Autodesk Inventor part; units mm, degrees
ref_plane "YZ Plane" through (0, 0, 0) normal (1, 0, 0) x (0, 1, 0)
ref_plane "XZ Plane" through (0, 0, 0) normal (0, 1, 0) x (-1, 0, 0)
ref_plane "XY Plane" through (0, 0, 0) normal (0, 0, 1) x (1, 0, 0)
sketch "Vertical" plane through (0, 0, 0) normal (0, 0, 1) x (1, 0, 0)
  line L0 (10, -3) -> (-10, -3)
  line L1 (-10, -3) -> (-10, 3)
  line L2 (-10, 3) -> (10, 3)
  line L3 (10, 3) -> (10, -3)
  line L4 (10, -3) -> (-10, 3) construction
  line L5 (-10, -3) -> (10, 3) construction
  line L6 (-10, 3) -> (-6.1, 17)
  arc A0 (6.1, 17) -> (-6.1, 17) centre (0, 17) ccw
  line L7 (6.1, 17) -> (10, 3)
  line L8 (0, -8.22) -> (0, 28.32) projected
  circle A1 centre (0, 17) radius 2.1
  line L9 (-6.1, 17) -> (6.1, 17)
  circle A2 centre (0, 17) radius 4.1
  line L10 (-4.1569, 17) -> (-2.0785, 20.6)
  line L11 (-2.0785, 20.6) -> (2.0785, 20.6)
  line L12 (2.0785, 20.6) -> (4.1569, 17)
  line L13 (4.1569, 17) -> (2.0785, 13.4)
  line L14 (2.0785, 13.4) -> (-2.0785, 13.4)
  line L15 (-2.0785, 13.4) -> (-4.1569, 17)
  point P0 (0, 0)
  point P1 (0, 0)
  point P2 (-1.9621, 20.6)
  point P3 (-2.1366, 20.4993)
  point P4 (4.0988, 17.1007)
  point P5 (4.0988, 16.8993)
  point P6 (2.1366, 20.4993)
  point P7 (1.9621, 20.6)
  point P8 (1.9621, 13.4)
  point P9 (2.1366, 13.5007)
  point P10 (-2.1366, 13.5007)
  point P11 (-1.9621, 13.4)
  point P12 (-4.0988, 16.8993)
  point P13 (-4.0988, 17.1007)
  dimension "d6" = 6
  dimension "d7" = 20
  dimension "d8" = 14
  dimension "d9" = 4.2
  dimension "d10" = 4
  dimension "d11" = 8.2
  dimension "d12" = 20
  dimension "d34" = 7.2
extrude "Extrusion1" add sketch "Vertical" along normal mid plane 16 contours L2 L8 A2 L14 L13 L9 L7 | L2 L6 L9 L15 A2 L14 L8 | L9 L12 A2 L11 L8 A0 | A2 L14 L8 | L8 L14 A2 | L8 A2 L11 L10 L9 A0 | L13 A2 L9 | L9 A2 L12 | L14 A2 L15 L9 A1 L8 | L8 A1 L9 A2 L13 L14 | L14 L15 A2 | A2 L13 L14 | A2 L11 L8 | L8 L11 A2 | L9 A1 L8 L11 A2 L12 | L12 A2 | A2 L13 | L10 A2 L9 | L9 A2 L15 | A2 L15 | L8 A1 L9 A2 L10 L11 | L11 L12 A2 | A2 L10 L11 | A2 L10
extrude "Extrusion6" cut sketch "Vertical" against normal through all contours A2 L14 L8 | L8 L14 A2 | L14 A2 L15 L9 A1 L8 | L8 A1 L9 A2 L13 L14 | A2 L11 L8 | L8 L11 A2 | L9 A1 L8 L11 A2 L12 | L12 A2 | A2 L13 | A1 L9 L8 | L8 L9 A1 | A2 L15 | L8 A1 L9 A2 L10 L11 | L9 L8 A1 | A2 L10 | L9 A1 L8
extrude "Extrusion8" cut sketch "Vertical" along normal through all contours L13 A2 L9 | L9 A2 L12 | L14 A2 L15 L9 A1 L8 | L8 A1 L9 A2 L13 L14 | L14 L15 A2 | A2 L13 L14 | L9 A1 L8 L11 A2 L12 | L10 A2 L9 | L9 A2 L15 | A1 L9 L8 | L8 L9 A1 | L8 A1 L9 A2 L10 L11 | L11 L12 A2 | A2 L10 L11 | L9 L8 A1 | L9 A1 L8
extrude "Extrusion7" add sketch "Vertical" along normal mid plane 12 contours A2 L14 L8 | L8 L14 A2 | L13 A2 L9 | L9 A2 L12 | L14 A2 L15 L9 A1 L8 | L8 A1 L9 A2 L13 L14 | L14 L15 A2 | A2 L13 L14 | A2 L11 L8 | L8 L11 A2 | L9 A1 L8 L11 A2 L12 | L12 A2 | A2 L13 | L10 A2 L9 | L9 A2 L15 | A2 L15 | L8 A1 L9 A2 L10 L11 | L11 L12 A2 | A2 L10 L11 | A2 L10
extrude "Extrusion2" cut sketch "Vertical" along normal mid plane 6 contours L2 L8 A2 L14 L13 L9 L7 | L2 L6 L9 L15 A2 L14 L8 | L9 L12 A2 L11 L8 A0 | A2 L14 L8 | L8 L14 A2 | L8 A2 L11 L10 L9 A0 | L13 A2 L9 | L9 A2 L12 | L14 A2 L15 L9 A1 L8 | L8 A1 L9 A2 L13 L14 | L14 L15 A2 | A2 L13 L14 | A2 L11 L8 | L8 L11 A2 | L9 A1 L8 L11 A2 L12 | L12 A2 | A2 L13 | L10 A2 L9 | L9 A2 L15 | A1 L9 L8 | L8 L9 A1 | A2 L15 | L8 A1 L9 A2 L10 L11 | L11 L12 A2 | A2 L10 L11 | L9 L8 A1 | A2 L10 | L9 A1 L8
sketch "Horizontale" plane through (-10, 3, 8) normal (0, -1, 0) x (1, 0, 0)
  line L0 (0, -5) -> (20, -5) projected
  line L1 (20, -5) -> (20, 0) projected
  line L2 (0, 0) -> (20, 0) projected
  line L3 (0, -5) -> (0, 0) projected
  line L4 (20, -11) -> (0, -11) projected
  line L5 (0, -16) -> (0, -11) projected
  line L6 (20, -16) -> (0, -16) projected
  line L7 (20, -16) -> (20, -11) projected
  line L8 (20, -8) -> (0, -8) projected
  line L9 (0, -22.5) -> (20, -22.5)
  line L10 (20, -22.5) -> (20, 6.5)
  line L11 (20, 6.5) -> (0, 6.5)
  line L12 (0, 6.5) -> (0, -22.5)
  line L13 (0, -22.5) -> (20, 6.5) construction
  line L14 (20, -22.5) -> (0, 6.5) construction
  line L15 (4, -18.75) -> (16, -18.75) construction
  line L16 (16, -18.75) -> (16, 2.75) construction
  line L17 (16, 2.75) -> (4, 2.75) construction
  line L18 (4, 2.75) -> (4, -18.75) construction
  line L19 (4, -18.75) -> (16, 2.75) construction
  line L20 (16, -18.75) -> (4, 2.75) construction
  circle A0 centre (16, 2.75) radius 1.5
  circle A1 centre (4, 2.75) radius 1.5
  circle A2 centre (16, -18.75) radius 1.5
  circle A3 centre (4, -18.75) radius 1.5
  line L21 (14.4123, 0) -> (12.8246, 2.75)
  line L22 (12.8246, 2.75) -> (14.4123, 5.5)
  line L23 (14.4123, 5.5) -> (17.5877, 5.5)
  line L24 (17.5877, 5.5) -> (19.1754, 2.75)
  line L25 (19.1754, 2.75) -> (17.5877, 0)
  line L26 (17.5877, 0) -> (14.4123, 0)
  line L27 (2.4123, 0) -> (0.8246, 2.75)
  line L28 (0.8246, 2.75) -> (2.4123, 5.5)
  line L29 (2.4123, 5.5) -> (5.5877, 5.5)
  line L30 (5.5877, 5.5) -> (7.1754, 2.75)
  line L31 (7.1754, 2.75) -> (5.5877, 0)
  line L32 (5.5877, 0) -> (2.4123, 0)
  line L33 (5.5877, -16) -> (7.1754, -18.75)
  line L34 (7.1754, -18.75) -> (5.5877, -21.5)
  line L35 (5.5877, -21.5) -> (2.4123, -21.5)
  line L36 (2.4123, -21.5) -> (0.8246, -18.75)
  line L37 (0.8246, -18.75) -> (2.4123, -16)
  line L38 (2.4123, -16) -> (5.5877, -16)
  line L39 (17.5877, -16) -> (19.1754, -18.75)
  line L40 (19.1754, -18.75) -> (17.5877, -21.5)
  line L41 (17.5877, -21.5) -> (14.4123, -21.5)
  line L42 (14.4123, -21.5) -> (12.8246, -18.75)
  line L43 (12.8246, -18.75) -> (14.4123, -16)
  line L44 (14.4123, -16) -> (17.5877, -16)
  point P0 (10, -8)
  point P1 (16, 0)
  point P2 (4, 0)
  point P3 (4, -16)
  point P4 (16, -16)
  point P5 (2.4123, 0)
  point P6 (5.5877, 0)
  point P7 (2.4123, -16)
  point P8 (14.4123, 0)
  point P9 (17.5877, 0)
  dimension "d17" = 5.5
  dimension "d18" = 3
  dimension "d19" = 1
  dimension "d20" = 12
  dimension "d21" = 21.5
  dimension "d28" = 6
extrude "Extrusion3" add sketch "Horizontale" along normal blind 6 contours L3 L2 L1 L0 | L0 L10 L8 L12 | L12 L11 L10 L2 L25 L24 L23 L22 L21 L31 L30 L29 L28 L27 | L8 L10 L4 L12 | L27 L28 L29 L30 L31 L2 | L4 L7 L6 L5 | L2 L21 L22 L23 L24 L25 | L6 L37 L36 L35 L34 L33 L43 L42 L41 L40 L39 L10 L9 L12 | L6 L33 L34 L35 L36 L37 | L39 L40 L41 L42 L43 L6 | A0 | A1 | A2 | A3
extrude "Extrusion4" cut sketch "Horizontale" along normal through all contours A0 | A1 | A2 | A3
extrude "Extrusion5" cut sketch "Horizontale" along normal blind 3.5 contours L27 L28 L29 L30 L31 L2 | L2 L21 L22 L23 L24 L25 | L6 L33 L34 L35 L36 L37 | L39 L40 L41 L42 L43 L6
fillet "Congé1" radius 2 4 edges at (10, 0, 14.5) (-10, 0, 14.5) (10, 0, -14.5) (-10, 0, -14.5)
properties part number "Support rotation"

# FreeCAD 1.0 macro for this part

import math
import FreeCAD as App
import Part
import Sketcher
from FreeCAD import Vector
Q = App.Units.Quantity


def edges_at(feature, points):
    """Names of the edges that pass closest to the given points."""
    edges = feature.Shape.Edges
    near = lambda p: min(range(len(edges)), key=lambda i: edges[i].distToShape(Part.Vertex(*p))[0])
    return sorted({f"Edge{near(p) + 1}" for p in points})


def add_polygon(sketch, points):
    """Adds a closed chain of lines whose ends are joined by coincident constraints."""
    first, n = sketch.GeometryCount, len(points)
    for a, b in zip(points, points[1:] + points[:1]):
        sketch.addGeometry(Part.LineSegment(App.Vector(*a, 0), App.Vector(*b, 0)), False)
    for i in range(n):
        sketch.addConstraint(Sketcher.Constraint("Coincident", first + i, 2, first + (i + 1) % n, 1))

doc = App.newDocument("Part")
body = doc.addObject("PartDesign::Body", "Body")
body.AllowCompound = True

# Sketch on XY plane
sketch1 = body.newObject("Sketcher::SketchObject", "Sketch")
sketch1.AttachmentSupport = (doc.getObject("XY_Plane"), [""])
sketch1.MapMode = "FlatFace"
sketch1.addGeometry(Part.LineSegment(Vector(10, 3, 0), Vector(6.1, 17, 0)), False)
sketch1.addGeometry(Part.ArcOfCircle(Part.Circle(Vector(0, 17, 0), Vector(0, 0, 1), 6.1), math.radians(0), math.radians(180)), False)
sketch1.addGeometry(Part.LineSegment(Vector(-6.1, 17, 0), Vector(-10, 3, 0)), False)
sketch1.addGeometry(Part.LineSegment(Vector(-10, 3, 0), Vector(10, 3, 0)), False)
sketch1.addGeometry(Part.Circle(Vector(0, 17, 0), Vector(0, 0, 1), 2.1), False)
sketch1.addConstraint(Sketcher.Constraint("Coincident", 0, 2, 1, 1))
sketch1.addConstraint(Sketcher.Constraint("Coincident", 1, 2, 2, 1))
sketch1.addConstraint(Sketcher.Constraint("Coincident", 2, 2, 3, 1))
sketch1.addConstraint(Sketcher.Constraint("Coincident", 3, 2, 0, 1))
sketch1.addConstraint(Sketcher.Constraint("Horizontal", 3))
sketch1.addConstraint(Sketcher.Constraint("Coincident", 4, 3, 1, 3))
sketch1.addConstraint(Sketcher.Constraint("Symmetric", 0, 2, 1, 2, -2))
sketch1.addConstraint(Sketcher.Constraint("Horizontal", 4, 3, 0, 2))
sketch1.addConstraint(Sketcher.Constraint("Equal", 0, 2))
sketch1.addConstraint(Sketcher.Constraint("Diameter", 4, 4.2))
sketch1.addConstraint(Sketcher.Constraint("DistanceX", 3, 1, 3, 2, 20.0))
sketch1.addConstraint(Sketcher.Constraint("DistanceY", 2, 2, 1, 2, 14.0))
sketch1.addConstraint(Sketcher.Constraint("Radius", 1, 6.1))
sketch1.addConstraint(Sketcher.Constraint("DistanceY", -1, 1, 1, 3, 17.0))
pad1 = body.newObject("PartDesign::Pad", "Pad")
pad1.Profile = sketch1
pad1.Length = 16
pad1.Midplane = True

# Sketch on XY plane
sketch2 = body.newObject("Sketcher::SketchObject", "Sketch001")
sketch2.AttachmentSupport = (doc.getObject("XY_Plane"), [""])
sketch2.MapMode = "FlatFace"
sketch2.addGeometry(Part.Circle(Vector(0, 17, 0), Vector(0, 0, 1), 4.1), False)
sketch2.addConstraint(Sketcher.Constraint("PointOnObject", 0, 3, -2))
sketch2.addConstraint(Sketcher.Constraint("Diameter", 0, 8.2))
sketch2.addConstraint(Sketcher.Constraint("DistanceY", -1, 1, 0, 3, 17.0))
pocket1 = body.newObject("PartDesign::Pocket", "Pocket")
pocket1.Profile = sketch2
pocket1.Type = "ThroughAll"

# Sketch on XY plane
sketch3 = body.newObject("Sketcher::SketchObject", "Sketch002")
sketch3.AttachmentSupport = (doc.getObject("XY_Plane"), [""])
sketch3.MapMode = "FlatFace"
add_polygon(sketch3, [(4.2, 17), (2.1, 20.6), (-2.1, 20.6), (-4.2, 17), (-2.1, 13.4), (2.1, 13.4)])  # lines 0-5
sketch3.addConstraint(Sketcher.Constraint("Horizontal", 1))
sketch3.addConstraint(Sketcher.Constraint("Horizontal", 4))
sketch3.addConstraint(Sketcher.Constraint("Symmetric", 2, 2, 5, 2, -2))
sketch3.addConstraint(Sketcher.Constraint("Parallel", 0, 3))
sketch3.addConstraint(Sketcher.Constraint("Parallel", 2, 5))
sketch3.addConstraint(Sketcher.Constraint("Vertical", 1, 2, 3, 2))
sketch3.addConstraint(Sketcher.Constraint("Vertical", 0, 2, 4, 2))
sketch3.addConstraint(Sketcher.Constraint("DistanceY", 3, 2, 1, 2, 7.2))
sketch3.addConstraint(Sketcher.Constraint("Angle", 0, Q("119.9993 deg")))
sketch3.addConstraint(Sketcher.Constraint("DistanceY", -1, 1, 2, 2, 17.0))
sketch3.addConstraint(Sketcher.Constraint("DistanceX", 1, 2, 1, 1, 4.157))
pocket2 = body.newObject("PartDesign::Pocket", "Pocket001")
pocket2.Profile = sketch3
pocket2.Type = "ThroughAll"
pocket2.Reversed = True

# Sketch on XY plane
sketch4 = body.newObject("Sketcher::SketchObject", "Sketch003")
sketch4.AttachmentSupport = (doc.getObject("XY_Plane"), [""])
sketch4.MapMode = "FlatFace"
sketch4.addGeometry(Part.ArcOfCircle(Part.Circle(Vector(0, 17, 0), Vector(0, 0, 1), 4.1), math.radians(-119), math.radians(-61)), False)
sketch4.addGeometry(Part.LineSegment(Vector(1.96, 13.4, 0), Vector(2.08, 13.4, 0)), False)
sketch4.addGeometry(Part.LineSegment(Vector(2.08, 13.4, 0), Vector(2.14, 13.5, 0)), False)
sketch4.addGeometry(Part.ArcOfCircle(Part.Circle(Vector(0, 17, 0), Vector(0, 0, 1), 4.1), math.radians(-59), math.radians(-1)), False)
sketch4.addGeometry(Part.LineSegment(Vector(4.1, 16.9, 0), Vector(4.16, 17, 0)), False)
sketch4.addGeometry(Part.LineSegment(Vector(4.16, 17, 0), Vector(4.1, 17.1, 0)), False)
sketch4.addGeometry(Part.ArcOfCircle(Part.Circle(Vector(0, 17, 0), Vector(0, 0, 1), 4.1), math.radians(1), math.radians(59)), False)
sketch4.addGeometry(Part.LineSegment(Vector(2.14, 20.5, 0), Vector(2.08, 20.6, 0)), False)
sketch4.addGeometry(Part.LineSegment(Vector(2.08, 20.6, 0), Vector(1.96, 20.6, 0)), False)
sketch4.addGeometry(Part.ArcOfCircle(Part.Circle(Vector(0, 17, 0), Vector(0, 0, 1), 4.1), math.radians(61), math.radians(119)), False)
sketch4.addGeometry(Part.LineSegment(Vector(-1.96, 20.6, 0), Vector(-2.08, 20.6, 0)), False)
sketch4.addGeometry(Part.LineSegment(Vector(-2.08, 20.6, 0), Vector(-2.14, 20.5, 0)), False)
sketch4.addGeometry(Part.ArcOfCircle(Part.Circle(Vector(0, 17, 0), Vector(0, 0, 1), 4.1), math.radians(121), math.radians(179)), False)
sketch4.addGeometry(Part.LineSegment(Vector(-4.1, 17.1, 0), Vector(-4.16, 17, 0)), False)
sketch4.addGeometry(Part.LineSegment(Vector(-4.16, 17, 0), Vector(-4.1, 16.9, 0)), False)
sketch4.addGeometry(Part.ArcOfCircle(Part.Circle(Vector(0, 17, 0), Vector(0, 0, 1), 4.1), math.radians(-179), math.radians(-121)), False)
sketch4.addGeometry(Part.LineSegment(Vector(-2.14, 13.5, 0), Vector(-2.08, 13.4, 0)), False)
sketch4.addGeometry(Part.LineSegment(Vector(-2.08, 13.4, 0), Vector(-1.96, 13.4, 0)), False)
sketch4.addGeometry(Part.Circle(Vector(0, 17, 0), Vector(0, 0, 1), 2.1), False)
sketch4.addConstraint(Sketcher.Constraint("Coincident", 0, 2, 1, 1))
sketch4.addConstraint(Sketcher.Constraint("Coincident", 1, 2, 2, 1))
sketch4.addConstraint(Sketcher.Constraint("Coincident", 2, 2, 3, 1))
sketch4.addConstraint(Sketcher.Constraint("Coincident", 3, 2, 4, 1))
sketch4.addConstraint(Sketcher.Constraint("Coincident", 4, 2, 5, 1))
sketch4.addConstraint(Sketcher.Constraint("Coincident", 5, 2, 6, 1))
sketch4.addConstraint(Sketcher.Constraint("Coincident", 6, 2, 7, 1))
sketch4.addConstraint(Sketcher.Constraint("Coincident", 7, 2, 8, 1))
sketch4.addConstraint(Sketcher.Constraint("Coincident", 8, 2, 9, 1))
sketch4.addConstraint(Sketcher.Constraint("Coincident", 9, 2, 10, 1))
sketch4.addConstraint(Sketcher.Constraint("Coincident", 10, 2, 11, 1))
sketch4.addConstraint(Sketcher.Constraint("Coincident", 11, 2, 12, 1))
sketch4.addConstraint(Sketcher.Constraint("Coincident", 12, 2, 13, 1))
sketch4.addConstraint(Sketcher.Constraint("Coincident", 13, 2, 14, 1))
sketch4.addConstraint(Sketcher.Constraint("Coincident", 14, 2, 15, 1))
sketch4.addConstraint(Sketcher.Constraint("Coincident", 15, 2, 16, 1))
sketch4.addConstraint(Sketcher.Constraint("Coincident", 16, 2, 17, 1))
sketch4.addConstraint(Sketcher.Constraint("Coincident", 17, 2, 0, 1))
sketch4.addConstraint(Sketcher.Constraint("Horizontal", 1))
sketch4.addConstraint(Sketcher.Constraint("Horizontal", 8))
sketch4.addConstraint(Sketcher.Constraint("Horizontal", 10))
sketch4.addConstraint(Sketcher.Constraint("Horizontal", 17))
sketch4.addConstraint(Sketcher.Constraint("Coincident", 3, 3, 0, 3))
sketch4.addConstraint(Sketcher.Constraint("Coincident", 6, 3, 0, 3))
sketch4.addConstraint(Sketcher.Constraint("Coincident", 9, 3, 0, 3))
sketch4.addConstraint(Sketcher.Constraint("Coincident", 12, 3, 0, 3))
sketch4.addConstraint(Sketcher.Constraint("Coincident", 15, 3, 0, 3))
sketch4.addConstraint(Sketcher.Constraint("Coincident", 18, 3, 0, 3))
sketch4.addConstraint(Sketcher.Constraint("Equal", 0, 3))
sketch4.addConstraint(Sketcher.Constraint("Equal", 3, 6))
sketch4.addConstraint(Sketcher.Constraint("Equal", 6, 9))
sketch4.addConstraint(Sketcher.Constraint("Equal", 9, 12))
sketch4.addConstraint(Sketcher.Constraint("Equal", 12, 15))
sketch4.addConstraint(Sketcher.Constraint("Symmetric", 8, 2, 9, 2, -2))
sketch4.addConstraint(Sketcher.Constraint("Symmetric", 4, 2, 13, 2, -2))
sketch4.addConstraint(Sketcher.Constraint("Symmetric", 1, 2, 16, 2, -2))
sketch4.addConstraint(Sketcher.Constraint("Parallel", 2, 4))
sketch4.addConstraint(Sketcher.Constraint("Parallel", 5, 7))
sketch4.addConstraint(Sketcher.Constraint("Parallel", 4, 11))
sketch4.addConstraint(Sketcher.Constraint("Parallel", 11, 13))
sketch4.addConstraint(Sketcher.Constraint("Parallel", 7, 14))
sketch4.addConstraint(Sketcher.Constraint("Parallel", 14, 16))
sketch4.addConstraint(Sketcher.Constraint("Horizontal", 18, 3, 4, 2))
sketch4.addConstraint(Sketcher.Constraint("Horizontal", 6, 2, 11, 2))
sketch4.addConstraint(Sketcher.Constraint("Horizontal", 5, 2, 12, 2))
sketch4.addConstraint(Sketcher.Constraint("Vertical", 2, 2, 6, 2))
sketch4.addConstraint(Sketcher.Constraint("Vertical", 1, 2, 7, 2))
sketch4.addConstraint(Sketcher.Constraint("Equal", 2, 4))
sketch4.addConstraint(Sketcher.Constraint("Diameter", 18, 4.2))
sketch4.addConstraint(Sketcher.Constraint("Radius", 0, 4.1))
sketch4.addConstraint(Sketcher.Constraint("Angle", 2, Q("60.0007 deg")))
sketch4.addConstraint(Sketcher.Constraint("DistanceY", -1, 1, 0, 3, 17.0))
sketch4.addConstraint(Sketcher.Constraint("DistanceY", -1, 1, 0, 2, 13.4))
sketch4.addConstraint(Sketcher.Constraint("DistanceX", 1, 1, 1, 2, 0.1164))
pad2 = body.newObject("PartDesign::Pad", "Pad001")
pad2.Profile = sketch4
pad2.Length = 12
pad2.Midplane = True

# Sketch on XY plane
sketch5 = body.newObject("Sketcher::SketchObject", "Sketch004")
sketch5.AttachmentSupport = (doc.getObject("XY_Plane"), [""])
sketch5.MapMode = "FlatFace"
sketch5.addGeometry(Part.LineSegment(Vector(10, 3, 0), Vector(6, 17, 0)), False)
sketch5.addGeometry(Part.ArcOfCircle(Part.Circle(Vector(0, 17, 0), Vector(0, 0, 1), 6), math.radians(0), math.radians(180)), False)
sketch5.addGeometry(Part.LineSegment(Vector(-6, 17, 0), Vector(-10, 3, 0)), False)
sketch5.addGeometry(Part.LineSegment(Vector(-10, 3, 0), Vector(10, 3, 0)), False)
sketch5.addConstraint(Sketcher.Constraint("Coincident", 0, 2, 1, 1))
sketch5.addConstraint(Sketcher.Constraint("Coincident", 1, 2, 2, 1))
sketch5.addConstraint(Sketcher.Constraint("Coincident", 2, 2, 3, 1))
sketch5.addConstraint(Sketcher.Constraint("Coincident", 3, 2, 0, 1))
sketch5.addConstraint(Sketcher.Constraint("Horizontal", 3))
sketch5.addConstraint(Sketcher.Constraint("Symmetric", 0, 2, 1, 2, -2))
sketch5.addConstraint(Sketcher.Constraint("Horizontal", 1, 3, 0, 2))
sketch5.addConstraint(Sketcher.Constraint("Equal", 0, 2))
sketch5.addConstraint(Sketcher.Constraint("DistanceX", 3, 1, 3, 2, 20.0))
sketch5.addConstraint(Sketcher.Constraint("DistanceY", 2, 2, 1, 2, 14.0))
sketch5.addConstraint(Sketcher.Constraint("Radius", 1, 6.1))
sketch5.addConstraint(Sketcher.Constraint("DistanceY", -1, 1, 1, 3, 17.0))
pocket3 = body.newObject("PartDesign::Pocket", "Pocket002")
pocket3.Profile = sketch5
pocket3.Length = 6
pocket3.Midplane = True

# Sketch on XZ plane
sketch6 = body.newObject("Sketcher::SketchObject", "Sketch005")
sketch6.AttachmentSupport = (doc.getObject("XZ_Plane"), [""])
sketch6.MapMode = "FlatFace"
sketch6.AttachmentOffset = App.Placement(Vector(0, 0, -3), App.Rotation())
add_polygon(sketch6, [(-10, -14), (10, -14), (10, 14), (-10, 14)])  # lines 0-3
sketch6.addConstraint(Sketcher.Constraint("Horizontal", 0))
sketch6.addConstraint(Sketcher.Constraint("Vertical", 1))
sketch6.addConstraint(Sketcher.Constraint("Horizontal", 2))
sketch6.addConstraint(Sketcher.Constraint("Vertical", 3))
sketch6.addConstraint(Sketcher.Constraint("Symmetric", 0, 2, 2, 2, -1, 1))
sketch6.addConstraint(Sketcher.Constraint("DistanceX", 0, 1, 0, 2, 20.0))
sketch6.addConstraint(Sketcher.Constraint("DistanceY", 1, 1, 1, 2, 29.0))
pad3 = body.newObject("PartDesign::Pad", "Pad002")
pad3.Profile = sketch6
pad3.Length = 6

# Sketch on XZ plane
sketch7 = body.newObject("Sketcher::SketchObject", "Sketch006")
sketch7.AttachmentSupport = (doc.getObject("XZ_Plane"), [""])
sketch7.MapMode = "FlatFace"
sketch7.AttachmentOffset = App.Placement(Vector(0, 0, -3), App.Rotation())
sketch7.addGeometry(Part.Circle(Vector(6, 10.8, 0), Vector(0, 0, 1), 1.5), False)
sketch7.addGeometry(Part.Circle(Vector(-6, 10.8, 0), Vector(0, 0, 1), 1.5), False)
sketch7.addGeometry(Part.Circle(Vector(6, -10.8, 0), Vector(0, 0, 1), 1.5), False)
sketch7.addGeometry(Part.Circle(Vector(-6, -10.8, 0), Vector(0, 0, 1), 1.5), False)
sketch7.addConstraint(Sketcher.Constraint("Equal", 0, 1))
sketch7.addConstraint(Sketcher.Constraint("Equal", 1, 2))
sketch7.addConstraint(Sketcher.Constraint("Equal", 2, 3))
sketch7.addConstraint(Sketcher.Constraint("Symmetric", 1, 3, 2, 3, -1, 1))
sketch7.addConstraint(Sketcher.Constraint("Symmetric", 0, 3, 3, 3, -1, 1))
sketch7.addConstraint(Sketcher.Constraint("Symmetric", 0, 3, 1, 3, -2))
sketch7.addConstraint(Sketcher.Constraint("Diameter", 0, 3.0))
sketch7.addConstraint(Sketcher.Constraint("DistanceX", -1, 1, 0, 3, 6.0))
sketch7.addConstraint(Sketcher.Constraint("DistanceY", 2, 3, 0, 3, 21.5))
pocket4 = body.newObject("PartDesign::Pocket", "Pocket003")
pocket4.Profile = sketch7
pocket4.Type = "ThroughAll"
pocket4.Reversed = True

# Sketch on XZ plane
sketch8 = body.newObject("Sketcher::SketchObject", "Sketch007")
sketch8.AttachmentSupport = (doc.getObject("XZ_Plane"), [""])
sketch8.MapMode = "FlatFace"
sketch8.AttachmentOffset = App.Placement(Vector(0, 0, -3), App.Rotation())
add_polygon(sketch8, [(-9.2, 10.8), (-7.6, 8), (-4.4, 8), (-2.8, 10.8), (-4.4, 13.5), (-7.6, 13.5)])  # lines 0-5
sketch8.addGeometry(Part.Circle(Vector(-6, 10.8, 0), Vector(0, 0, 1), 1.5), False)  # 6
add_polygon(sketch8, [(4.4, 8), (7.6, 8), (9.2, 10.8), (7.6, 13.5), (4.4, 13.5), (2.8, 10.8)])  # lines 7-12
sketch8.addGeometry(Part.Circle(Vector(6, 10.8, 0), Vector(0, 0, 1), 1.5), False)  # 13
add_polygon(sketch8, [(-4.4, -8), (-7.6, -8), (-9.2, -10.8), (-7.6, -13.5), (-4.4, -13.5), (-2.8, -10.8)])  # lines 14-19
sketch8.addGeometry(Part.Circle(Vector(-6, -10.8, 0), Vector(0, 0, 1), 1.5), False)  # 20
add_polygon(sketch8, [(9.2, -10.8), (7.6, -8), (4.4, -8), (2.8, -10.8), (4.4, -13.5), (7.6, -13.5)])  # lines 21-26
sketch8.addGeometry(Part.Circle(Vector(6, -10.8, 0), Vector(0, 0, 1), 1.5), False)  # 27
sketch8.addConstraint(Sketcher.Constraint("Horizontal", 1))
sketch8.addConstraint(Sketcher.Constraint("Horizontal", 4))
sketch8.addConstraint(Sketcher.Constraint("Horizontal", 7))
sketch8.addConstraint(Sketcher.Constraint("Horizontal", 10))
sketch8.addConstraint(Sketcher.Constraint("Horizontal", 14))
sketch8.addConstraint(Sketcher.Constraint("Horizontal", 17))
sketch8.addConstraint(Sketcher.Constraint("Horizontal", 22))
sketch8.addConstraint(Sketcher.Constraint("Horizontal", 25))
sketch8.addConstraint(Sketcher.Constraint("Equal", 6, 13))
sketch8.addConstraint(Sketcher.Constraint("Equal", 13, 20))
sketch8.addConstraint(Sketcher.Constraint("Equal", 20, 27))
sketch8.addConstraint(Sketcher.Constraint("Symmetric", 13, 3, 20, 3, -1, 1))
sketch8.addConstraint(Sketcher.Constraint("Symmetric", 6, 3, 27, 3, -1, 1))
sketch8.addConstraint(Sketcher.Constraint("Symmetric", 7, 2, 14, 2, -1, 1))
sketch8.addConstraint(Sketcher.Constraint("Symmetric", 8, 2, 15, 2, -1, 1))
sketch8.addConstraint(Sketcher.Constraint("Symmetric", 9, 2, 16, 2, -1, 1))
sketch8.addConstraint(Sketcher.Constraint("Symmetric", 11, 2, 18, 2, -1, 1))
sketch8.addConstraint(Sketcher.Constraint("Symmetric", 0, 2, 21, 2, -1, 1))
sketch8.addConstraint(Sketcher.Constraint("Symmetric", 2, 2, 23, 2, -1, 1))
sketch8.addConstraint(Sketcher.Constraint("Symmetric", 3, 2, 24, 2, -1, 1))
sketch8.addConstraint(Sketcher.Constraint("Symmetric", 5, 2, 26, 2, -1, 1))
sketch8.addConstraint(Sketcher.Constraint("Symmetric", 6, 3, 13, 3, -2))
sketch8.addConstraint(Sketcher.Constraint("Symmetric", 0, 2, 7, 2, -2))
sketch8.addConstraint(Sketcher.Constraint("Symmetric", 5, 2, 8, 2, -2))
sketch8.addConstraint(Sketcher.Constraint("Symmetric", 4, 2, 9, 2, -2))
sketch8.addConstraint(Sketcher.Constraint("Symmetric", 2, 2, 11, 2, -2))
sketch8.addConstraint(Sketcher.Constraint("Parallel", 0, 3))
sketch8.addConstraint(Sketcher.Constraint("Parallel", 2, 5))
sketch8.addConstraint(Sketcher.Constraint("Parallel", 5, 8))
sketch8.addConstraint(Sketcher.Constraint("Parallel", 8, 11))
sketch8.addConstraint(Sketcher.Constraint("Parallel", 9, 12))
sketch8.addConstraint(Sketcher.Constraint("Parallel", 15, 18))
sketch8.addConstraint(Sketcher.Constraint("Parallel", 16, 19))
sketch8.addConstraint(Sketcher.Constraint("Parallel", 18, 23))
sketch8.addConstraint(Sketcher.Constraint("Parallel", 23, 26))
sketch8.addConstraint(Sketcher.Constraint("Horizontal", 13, 3, 2, 2))
sketch8.addConstraint(Sketcher.Constraint("Horizontal", 2, 2, 5, 2))
sketch8.addConstraint(Sketcher.Constraint("Vertical", 1, 2, 3, 2))
sketch8.addConstraint(Sketcher.Constraint("Diameter", 6, 3.0))
sketch8.addConstraint(Sketcher.Constraint("DistanceX", 6, 3, -1, 1, 6.0))
sketch8.addConstraint(Sketcher.Constraint("DistanceX", 1, 2, 7, 2, 12.0))
sketch8.addConstraint(Sketcher.Constraint("DistanceY", 20, 3, 6, 3, 21.5))
sketch8.addConstraint(Sketcher.Constraint("DistanceY", 1, 2, 3, 2, 5.5))
sketch8.addConstraint(Sketcher.Constraint("Angle", 0, Q("-60.0002 deg")))
sketch8.addConstraint(Sketcher.Constraint("DistanceX", 1, 1, 1, 2, 3.1754))
pocket5 = body.newObject("PartDesign::Pocket", "Pocket004")
pocket5.Profile = sketch8
pocket5.Length = 3.5
pocket5.Reversed = True
doc.recompute()

fillet = body.newObject("PartDesign::Fillet", "Fillet")
fillet.Base = (pocket5, edges_at(pocket5, [
    (10, 0, 14.5),
    (-10, 0, 14.5),
    (10, 0, -14.5),
    (-10, 0, -14.5),
]))
fillet.Radius = 2

doc.recompute()
